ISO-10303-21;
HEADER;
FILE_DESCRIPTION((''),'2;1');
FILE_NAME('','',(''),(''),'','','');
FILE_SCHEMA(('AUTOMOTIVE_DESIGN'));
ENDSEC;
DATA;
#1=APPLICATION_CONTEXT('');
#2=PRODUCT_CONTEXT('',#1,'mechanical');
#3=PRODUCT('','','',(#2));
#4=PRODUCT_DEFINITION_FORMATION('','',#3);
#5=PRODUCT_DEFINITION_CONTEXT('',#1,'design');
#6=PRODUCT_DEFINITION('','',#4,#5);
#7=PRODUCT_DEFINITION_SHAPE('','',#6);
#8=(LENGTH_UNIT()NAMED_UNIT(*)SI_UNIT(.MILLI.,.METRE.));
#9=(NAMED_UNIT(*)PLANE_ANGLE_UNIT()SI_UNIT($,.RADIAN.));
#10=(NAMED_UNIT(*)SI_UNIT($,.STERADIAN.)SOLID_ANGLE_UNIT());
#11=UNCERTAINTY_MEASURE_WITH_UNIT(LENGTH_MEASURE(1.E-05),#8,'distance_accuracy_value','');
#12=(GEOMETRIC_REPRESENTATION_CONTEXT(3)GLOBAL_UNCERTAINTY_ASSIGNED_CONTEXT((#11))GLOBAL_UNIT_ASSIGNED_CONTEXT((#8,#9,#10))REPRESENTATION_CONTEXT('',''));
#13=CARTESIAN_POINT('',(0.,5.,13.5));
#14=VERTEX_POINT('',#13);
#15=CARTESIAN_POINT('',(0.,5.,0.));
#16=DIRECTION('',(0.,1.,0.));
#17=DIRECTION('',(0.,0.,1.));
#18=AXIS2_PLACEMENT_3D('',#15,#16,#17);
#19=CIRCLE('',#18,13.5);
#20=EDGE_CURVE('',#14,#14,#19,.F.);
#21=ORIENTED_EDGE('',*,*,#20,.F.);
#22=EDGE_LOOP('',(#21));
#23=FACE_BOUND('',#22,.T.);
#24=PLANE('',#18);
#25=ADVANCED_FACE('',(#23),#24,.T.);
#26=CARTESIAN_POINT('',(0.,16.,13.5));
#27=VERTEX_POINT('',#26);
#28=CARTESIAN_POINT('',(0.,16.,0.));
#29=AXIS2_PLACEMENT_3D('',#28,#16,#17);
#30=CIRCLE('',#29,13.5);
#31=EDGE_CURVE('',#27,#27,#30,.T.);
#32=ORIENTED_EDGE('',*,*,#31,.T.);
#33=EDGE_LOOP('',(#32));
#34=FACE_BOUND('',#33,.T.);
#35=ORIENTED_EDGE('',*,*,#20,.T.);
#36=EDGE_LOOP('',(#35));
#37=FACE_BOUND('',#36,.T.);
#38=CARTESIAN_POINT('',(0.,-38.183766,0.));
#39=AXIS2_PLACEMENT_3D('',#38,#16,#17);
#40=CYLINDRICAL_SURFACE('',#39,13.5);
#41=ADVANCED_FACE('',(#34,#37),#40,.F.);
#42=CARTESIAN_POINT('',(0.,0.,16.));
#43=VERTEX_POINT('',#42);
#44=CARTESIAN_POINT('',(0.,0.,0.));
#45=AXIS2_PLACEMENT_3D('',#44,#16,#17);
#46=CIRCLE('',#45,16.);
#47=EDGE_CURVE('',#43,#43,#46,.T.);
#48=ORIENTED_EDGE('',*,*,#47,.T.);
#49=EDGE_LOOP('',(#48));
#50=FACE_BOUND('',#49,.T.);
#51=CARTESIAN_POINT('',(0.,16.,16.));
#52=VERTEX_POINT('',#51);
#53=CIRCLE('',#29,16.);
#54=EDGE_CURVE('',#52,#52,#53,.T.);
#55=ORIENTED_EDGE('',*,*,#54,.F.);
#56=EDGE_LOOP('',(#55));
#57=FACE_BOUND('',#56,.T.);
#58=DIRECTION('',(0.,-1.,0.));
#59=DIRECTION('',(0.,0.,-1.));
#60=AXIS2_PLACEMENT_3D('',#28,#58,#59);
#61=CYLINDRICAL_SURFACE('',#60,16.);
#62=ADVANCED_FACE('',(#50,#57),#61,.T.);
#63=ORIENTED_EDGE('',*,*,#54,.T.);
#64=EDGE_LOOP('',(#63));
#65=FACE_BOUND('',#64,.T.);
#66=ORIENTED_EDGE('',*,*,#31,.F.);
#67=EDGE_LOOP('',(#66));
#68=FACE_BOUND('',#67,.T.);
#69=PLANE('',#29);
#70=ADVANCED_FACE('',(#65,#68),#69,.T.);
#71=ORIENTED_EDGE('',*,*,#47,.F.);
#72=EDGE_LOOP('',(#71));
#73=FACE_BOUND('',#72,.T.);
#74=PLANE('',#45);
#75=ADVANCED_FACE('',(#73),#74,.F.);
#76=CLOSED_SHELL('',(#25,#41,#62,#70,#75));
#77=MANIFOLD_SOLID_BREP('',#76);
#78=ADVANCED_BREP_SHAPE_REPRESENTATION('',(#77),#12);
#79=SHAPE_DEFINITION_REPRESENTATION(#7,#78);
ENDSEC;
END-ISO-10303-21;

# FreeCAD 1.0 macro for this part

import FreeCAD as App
import Part
import Sketcher
Q = App.Units.Quantity

doc = App.newDocument("Part")
body = doc.addObject("PartDesign::Body", "Body")

# Sketch on XZ plane
sketch1 = body.newObject("Sketcher::SketchObject", "Sketch")
sketch1.AttachmentSupport = (doc.getObject("XZ_Plane"), [""])
sketch1.MapMode = "FlatFace"
sketch1.addGeometry(Part.Circle(App.Vector(0, 0, 0), App.Vector(0, 0, 1), 16), False)
sketch1.addConstraint([
    Sketcher.Constraint("Coincident", 0, 3, -1, 1),
    Sketcher.Constraint("Diameter", 0, Q("32 mm")),
])
pad1 = body.newObject("PartDesign::Pad", "Pad")
pad1.Profile = sketch1
pad1.Length = 16
pad1.Reversed = True

# Sketch on XZ plane
sketch2 = body.newObject("Sketcher::SketchObject", "Sketch001")
sketch2.AttachmentSupport = (doc.getObject("XZ_Plane"), [""])
sketch2.MapMode = "FlatFace"
sketch2.AttachmentOffset = App.Placement(App.Vector(0, 0, -16), App.Rotation())
sketch2.addGeometry(Part.Circle(App.Vector(0, 0, 0), App.Vector(0, 0, 1), 14), False)
sketch2.addConstraint([
    Sketcher.Constraint("Coincident", 0, 3, -1, 1),
    Sketcher.Constraint("Diameter", 0, Q("27 mm")),
])
pocket1 = body.newObject("PartDesign::Pocket", "Pocket")
pocket1.Profile = sketch2
pocket1.Length = 11
pocket1.Reversed = True

doc.recompute()
